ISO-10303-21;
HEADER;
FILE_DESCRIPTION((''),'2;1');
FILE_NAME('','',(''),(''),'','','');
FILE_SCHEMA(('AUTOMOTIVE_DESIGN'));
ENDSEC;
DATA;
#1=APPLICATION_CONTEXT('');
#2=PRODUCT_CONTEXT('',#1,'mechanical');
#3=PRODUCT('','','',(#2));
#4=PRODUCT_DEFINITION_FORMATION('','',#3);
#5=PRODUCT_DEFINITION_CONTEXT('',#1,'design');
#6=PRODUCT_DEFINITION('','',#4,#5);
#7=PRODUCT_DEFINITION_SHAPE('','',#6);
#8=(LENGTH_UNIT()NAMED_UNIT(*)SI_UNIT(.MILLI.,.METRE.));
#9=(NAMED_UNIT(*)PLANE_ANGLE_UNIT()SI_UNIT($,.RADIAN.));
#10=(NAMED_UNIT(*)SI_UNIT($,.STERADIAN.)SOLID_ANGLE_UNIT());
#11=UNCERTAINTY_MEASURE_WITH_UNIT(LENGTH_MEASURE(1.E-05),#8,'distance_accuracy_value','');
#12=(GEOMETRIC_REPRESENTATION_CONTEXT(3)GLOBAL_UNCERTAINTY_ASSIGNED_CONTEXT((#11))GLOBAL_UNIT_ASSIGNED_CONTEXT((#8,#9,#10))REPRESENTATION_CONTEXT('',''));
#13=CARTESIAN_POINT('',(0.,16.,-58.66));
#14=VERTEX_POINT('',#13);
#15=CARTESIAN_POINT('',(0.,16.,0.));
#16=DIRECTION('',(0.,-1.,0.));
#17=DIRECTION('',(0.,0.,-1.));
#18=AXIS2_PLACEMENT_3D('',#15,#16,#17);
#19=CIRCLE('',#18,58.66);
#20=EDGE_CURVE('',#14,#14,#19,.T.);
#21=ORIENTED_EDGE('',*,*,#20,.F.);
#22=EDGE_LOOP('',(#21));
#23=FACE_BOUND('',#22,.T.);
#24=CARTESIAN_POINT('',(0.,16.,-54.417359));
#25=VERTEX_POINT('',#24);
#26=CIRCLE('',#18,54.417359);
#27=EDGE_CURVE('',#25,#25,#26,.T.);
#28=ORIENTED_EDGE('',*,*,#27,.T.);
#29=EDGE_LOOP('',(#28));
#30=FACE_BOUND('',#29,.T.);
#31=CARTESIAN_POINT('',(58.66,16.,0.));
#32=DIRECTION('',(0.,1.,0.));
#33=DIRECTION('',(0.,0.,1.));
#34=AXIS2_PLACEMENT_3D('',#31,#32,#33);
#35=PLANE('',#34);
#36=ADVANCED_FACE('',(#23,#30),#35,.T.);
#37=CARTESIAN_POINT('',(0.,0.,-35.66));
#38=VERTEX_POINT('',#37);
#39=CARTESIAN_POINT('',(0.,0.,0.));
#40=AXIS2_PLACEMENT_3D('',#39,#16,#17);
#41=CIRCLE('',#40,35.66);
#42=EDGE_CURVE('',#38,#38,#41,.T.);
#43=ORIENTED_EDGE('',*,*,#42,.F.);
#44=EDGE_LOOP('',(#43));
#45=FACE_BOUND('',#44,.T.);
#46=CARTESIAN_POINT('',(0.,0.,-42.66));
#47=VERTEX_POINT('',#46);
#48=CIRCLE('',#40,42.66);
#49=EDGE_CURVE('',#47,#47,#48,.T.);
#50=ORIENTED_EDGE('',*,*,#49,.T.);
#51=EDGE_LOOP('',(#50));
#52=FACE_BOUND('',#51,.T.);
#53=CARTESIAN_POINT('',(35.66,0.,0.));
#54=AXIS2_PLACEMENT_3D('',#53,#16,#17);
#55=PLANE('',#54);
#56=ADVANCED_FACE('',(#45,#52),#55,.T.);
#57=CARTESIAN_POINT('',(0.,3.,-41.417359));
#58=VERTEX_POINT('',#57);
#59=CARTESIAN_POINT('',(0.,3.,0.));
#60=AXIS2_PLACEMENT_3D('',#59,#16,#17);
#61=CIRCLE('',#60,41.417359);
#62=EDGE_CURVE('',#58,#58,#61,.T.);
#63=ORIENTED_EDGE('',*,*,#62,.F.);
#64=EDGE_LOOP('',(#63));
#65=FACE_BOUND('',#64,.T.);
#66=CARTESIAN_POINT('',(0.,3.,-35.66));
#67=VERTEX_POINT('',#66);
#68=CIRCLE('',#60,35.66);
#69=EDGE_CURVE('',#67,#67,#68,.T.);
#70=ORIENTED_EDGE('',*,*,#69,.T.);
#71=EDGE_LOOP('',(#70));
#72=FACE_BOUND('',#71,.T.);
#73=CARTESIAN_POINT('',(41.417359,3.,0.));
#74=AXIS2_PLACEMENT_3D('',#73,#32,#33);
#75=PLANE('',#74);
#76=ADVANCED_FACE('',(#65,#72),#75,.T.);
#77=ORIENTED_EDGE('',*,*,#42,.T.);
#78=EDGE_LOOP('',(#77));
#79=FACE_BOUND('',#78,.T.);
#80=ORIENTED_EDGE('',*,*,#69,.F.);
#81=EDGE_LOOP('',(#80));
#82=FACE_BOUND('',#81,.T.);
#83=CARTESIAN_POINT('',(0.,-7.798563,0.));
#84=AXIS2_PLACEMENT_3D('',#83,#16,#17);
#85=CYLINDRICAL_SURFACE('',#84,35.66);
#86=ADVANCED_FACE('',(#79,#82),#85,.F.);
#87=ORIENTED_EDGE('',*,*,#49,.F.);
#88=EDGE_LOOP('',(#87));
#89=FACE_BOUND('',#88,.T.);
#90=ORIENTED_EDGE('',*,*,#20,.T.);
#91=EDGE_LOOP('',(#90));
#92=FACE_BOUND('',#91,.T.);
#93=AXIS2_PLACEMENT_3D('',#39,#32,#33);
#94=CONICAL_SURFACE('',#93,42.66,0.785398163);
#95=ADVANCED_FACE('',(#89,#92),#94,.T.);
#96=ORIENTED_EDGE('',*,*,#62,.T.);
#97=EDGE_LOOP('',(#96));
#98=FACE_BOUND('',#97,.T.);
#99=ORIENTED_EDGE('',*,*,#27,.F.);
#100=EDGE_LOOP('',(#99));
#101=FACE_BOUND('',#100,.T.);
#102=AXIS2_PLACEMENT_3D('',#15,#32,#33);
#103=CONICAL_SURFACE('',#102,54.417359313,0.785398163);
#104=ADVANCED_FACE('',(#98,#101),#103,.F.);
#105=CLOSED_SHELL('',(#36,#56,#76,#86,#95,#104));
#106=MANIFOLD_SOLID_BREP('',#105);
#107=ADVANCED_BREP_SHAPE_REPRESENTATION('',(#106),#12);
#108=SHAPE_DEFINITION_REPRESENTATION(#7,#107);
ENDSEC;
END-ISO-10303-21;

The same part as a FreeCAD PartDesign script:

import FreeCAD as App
import Part
import Sketcher
from FreeCAD import Vector
Q = App.Units.Quantity

doc = App.newDocument("Part")
body = doc.addObject("PartDesign::Body", "Body")

# Sketch on XY plane
sketch1 = body.newObject("Sketcher::SketchObject", "Sketch")
sketch1.AttachmentSupport = (doc.getObject("XY_Plane"), [""])
sketch1.MapMode = "FlatFace"
sketch1.addGeometry(Part.LineSegment(Vector(35.66, 0, 0), Vector(42.66, 0, 0)), False)
sketch1.addGeometry(Part.LineSegment(Vector(42.66, 0, 0), Vector(58.66, 16, 0)), False)
sketch1.addGeometry(Part.LineSegment(Vector(58.66, 16, 0), Vector(54.417359, 16, 0)), False)
sketch1.addGeometry(Part.LineSegment(Vector(54.417359, 16, 0), Vector(41.417359, 3, 0)), False)
sketch1.addGeometry(Part.LineSegment(Vector(41.417359, 3, 0), Vector(35.66, 3, 0)), False)
sketch1.addGeometry(Part.LineSegment(Vector(35.66, 3, 0), Vector(35.66, 0, 0)), False)
sketch1.addConstraint(Sketcher.Constraint("Coincident", 0, 2, 1, 1))
sketch1.addConstraint(Sketcher.Constraint("Coincident", 1, 2, 2, 1))
sketch1.addConstraint(Sketcher.Constraint("Coincident", 2, 2, 3, 1))
sketch1.addConstraint(Sketcher.Constraint("Coincident", 3, 2, 4, 1))
sketch1.addConstraint(Sketcher.Constraint("Coincident", 4, 2, 5, 1))
sketch1.addConstraint(Sketcher.Constraint("Coincident", 5, 2, 0, 1))
sketch1.addConstraint(Sketcher.Constraint("Horizontal", 0))
sketch1.addConstraint(Sketcher.Constraint("Horizontal", 2))
sketch1.addConstraint(Sketcher.Constraint("Horizontal", 4))
sketch1.addConstraint(Sketcher.Constraint("Vertical", 5))
sketch1.addConstraint(Sketcher.Constraint("PointOnObject", 0, 2, -1))
sketch1.addConstraint(Sketcher.Constraint("Parallel", 1, 3))
sketch1.addConstraint(Sketcher.Constraint("DistanceX", 0, 1, 0, 2, 7.0))
sketch1.addConstraint(Sketcher.Constraint("DistanceY", 5, 2, 5, 1, 3.0))
sketch1.addConstraint(Sketcher.Constraint("Angle", 1, Q("45 deg")))
sketch1.addConstraint(Sketcher.Constraint("DistanceY", -1, 1, 1, 2, 16.0))
sketch1.addConstraint(Sketcher.Constraint("DistanceX", -1, 1, 0, 2, 42.66))
sketch1.addConstraint(Sketcher.Constraint("DistanceX", 2, 2, 2, 1, 4.242641))
revolution = body.newObject("PartDesign::Revolution", "Revolution")
revolution.Profile = sketch1
revolution.ReferenceAxis = (sketch1, ["V_Axis"])
revolution.Angle = 360

doc.recompute()
